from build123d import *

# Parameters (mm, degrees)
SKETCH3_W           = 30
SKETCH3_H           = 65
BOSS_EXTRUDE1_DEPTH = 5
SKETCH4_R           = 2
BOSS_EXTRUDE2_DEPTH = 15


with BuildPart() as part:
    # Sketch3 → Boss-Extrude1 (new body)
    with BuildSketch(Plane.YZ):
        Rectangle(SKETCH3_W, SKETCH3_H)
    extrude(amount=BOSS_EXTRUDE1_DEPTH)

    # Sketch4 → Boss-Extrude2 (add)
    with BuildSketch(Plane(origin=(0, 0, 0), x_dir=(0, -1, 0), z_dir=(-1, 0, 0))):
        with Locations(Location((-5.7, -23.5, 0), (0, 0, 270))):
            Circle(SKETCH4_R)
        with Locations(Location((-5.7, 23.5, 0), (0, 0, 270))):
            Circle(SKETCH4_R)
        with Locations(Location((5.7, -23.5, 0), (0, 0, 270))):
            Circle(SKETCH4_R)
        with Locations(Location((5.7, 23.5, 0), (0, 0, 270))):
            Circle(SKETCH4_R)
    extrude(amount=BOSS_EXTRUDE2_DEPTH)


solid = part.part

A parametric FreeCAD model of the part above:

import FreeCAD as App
import Part
import Sketcher

V = App.Vector
Q = App.Units.Quantity


def add_polygon(sketch, points):
    """Adds a closed chain of lines whose ends are joined by coincident constraints."""
    first, n = sketch.GeometryCount, len(points)
    for a, b in zip(points, points[1:] + points[:1]):
        sketch.addGeometry(Part.LineSegment(App.Vector(*a, 0), App.Vector(*b, 0)), False)
    for i in range(n):
        sketch.addConstraint(Sketcher.Constraint("Coincident", first + i, 2, first + (i + 1) % n, 1))

doc = App.newDocument("Part")
body = doc.addObject("PartDesign::Body", "Body")

sketch1 = doc.addObject("Sketcher::SketchObject", "Sketch")
body.addObject(sketch1)
sketch1.AttachmentSupport = (doc.YZ_Plane, [""])
sketch1.MapMode = "FlatFace"
add_polygon(sketch1, [(-15, 32.5), (-15, -32.5), (15, -32.5), (15, 32.5)])
sketch1.addConstraint([
    Sketcher.Constraint("Vertical", 0),
    Sketcher.Constraint("Horizontal", 1),
    Sketcher.Constraint("Vertical", 2),
    Sketcher.Constraint("Horizontal", 3),
    Sketcher.Constraint("Symmetric", 0, 2, 2, 2, -1, 1),
    Sketcher.Constraint("DistanceX", 1, 1, 1, 2, Q("30 mm")),
    Sketcher.Constraint("DistanceY", 0, 2, 0, 1, Q("65 mm")),
])
pad1 = doc.addObject("PartDesign::Pad", "Pad")
body.addObject(pad1)
pad1.Profile = sketch1
pad1.Length = 5

sketch2 = doc.addObject("Sketcher::SketchObject", "Sketch001")
body.addObject(sketch2)
sketch2.AttachmentSupport = (doc.YZ_Plane, [""])
sketch2.MapMode = "FlatFace"
sketch2.addGeometry([
    Part.Circle(V(5.7, -23.5, 0), V(0, 0, 1), 2),
    Part.Circle(V(5.7, 23.5, 0), V(0, 0, 1), 2),
    Part.Circle(V(-5.7, -23.5, 0), V(0, 0, 1), 2),
    Part.Circle(V(-5.7, 23.5, 0), V(0, 0, 1), 2),
], False)
sketch2.addConstraint([
    Sketcher.Constraint("Equal", 0, 1),
    Sketcher.Constraint("Equal", 1, 2),
    Sketcher.Constraint("Equal", 2, 3),
    Sketcher.Constraint("Symmetric", 1, 3, 2, 3, -1, 1),
    Sketcher.Constraint("Symmetric", 0, 3, 3, 3, -1, 1),
    Sketcher.Constraint("Symmetric", 0, 3, 2, 3, -2),
    Sketcher.Constraint("Diameter", 0, Q("4 mm")),
    Sketcher.Constraint("DistanceY", 0, 3, 1, 3, Q("47 mm")),
    Sketcher.Constraint("DistanceX", -1, 1, 0, 3, Q("5.7 mm")),
])
pad2 = doc.addObject("PartDesign::Pad", "Pad001")
body.addObject(pad2)
pad2.Profile = sketch2
pad2.Length = 15
pad2.Reversed = True

doc.recompute()
